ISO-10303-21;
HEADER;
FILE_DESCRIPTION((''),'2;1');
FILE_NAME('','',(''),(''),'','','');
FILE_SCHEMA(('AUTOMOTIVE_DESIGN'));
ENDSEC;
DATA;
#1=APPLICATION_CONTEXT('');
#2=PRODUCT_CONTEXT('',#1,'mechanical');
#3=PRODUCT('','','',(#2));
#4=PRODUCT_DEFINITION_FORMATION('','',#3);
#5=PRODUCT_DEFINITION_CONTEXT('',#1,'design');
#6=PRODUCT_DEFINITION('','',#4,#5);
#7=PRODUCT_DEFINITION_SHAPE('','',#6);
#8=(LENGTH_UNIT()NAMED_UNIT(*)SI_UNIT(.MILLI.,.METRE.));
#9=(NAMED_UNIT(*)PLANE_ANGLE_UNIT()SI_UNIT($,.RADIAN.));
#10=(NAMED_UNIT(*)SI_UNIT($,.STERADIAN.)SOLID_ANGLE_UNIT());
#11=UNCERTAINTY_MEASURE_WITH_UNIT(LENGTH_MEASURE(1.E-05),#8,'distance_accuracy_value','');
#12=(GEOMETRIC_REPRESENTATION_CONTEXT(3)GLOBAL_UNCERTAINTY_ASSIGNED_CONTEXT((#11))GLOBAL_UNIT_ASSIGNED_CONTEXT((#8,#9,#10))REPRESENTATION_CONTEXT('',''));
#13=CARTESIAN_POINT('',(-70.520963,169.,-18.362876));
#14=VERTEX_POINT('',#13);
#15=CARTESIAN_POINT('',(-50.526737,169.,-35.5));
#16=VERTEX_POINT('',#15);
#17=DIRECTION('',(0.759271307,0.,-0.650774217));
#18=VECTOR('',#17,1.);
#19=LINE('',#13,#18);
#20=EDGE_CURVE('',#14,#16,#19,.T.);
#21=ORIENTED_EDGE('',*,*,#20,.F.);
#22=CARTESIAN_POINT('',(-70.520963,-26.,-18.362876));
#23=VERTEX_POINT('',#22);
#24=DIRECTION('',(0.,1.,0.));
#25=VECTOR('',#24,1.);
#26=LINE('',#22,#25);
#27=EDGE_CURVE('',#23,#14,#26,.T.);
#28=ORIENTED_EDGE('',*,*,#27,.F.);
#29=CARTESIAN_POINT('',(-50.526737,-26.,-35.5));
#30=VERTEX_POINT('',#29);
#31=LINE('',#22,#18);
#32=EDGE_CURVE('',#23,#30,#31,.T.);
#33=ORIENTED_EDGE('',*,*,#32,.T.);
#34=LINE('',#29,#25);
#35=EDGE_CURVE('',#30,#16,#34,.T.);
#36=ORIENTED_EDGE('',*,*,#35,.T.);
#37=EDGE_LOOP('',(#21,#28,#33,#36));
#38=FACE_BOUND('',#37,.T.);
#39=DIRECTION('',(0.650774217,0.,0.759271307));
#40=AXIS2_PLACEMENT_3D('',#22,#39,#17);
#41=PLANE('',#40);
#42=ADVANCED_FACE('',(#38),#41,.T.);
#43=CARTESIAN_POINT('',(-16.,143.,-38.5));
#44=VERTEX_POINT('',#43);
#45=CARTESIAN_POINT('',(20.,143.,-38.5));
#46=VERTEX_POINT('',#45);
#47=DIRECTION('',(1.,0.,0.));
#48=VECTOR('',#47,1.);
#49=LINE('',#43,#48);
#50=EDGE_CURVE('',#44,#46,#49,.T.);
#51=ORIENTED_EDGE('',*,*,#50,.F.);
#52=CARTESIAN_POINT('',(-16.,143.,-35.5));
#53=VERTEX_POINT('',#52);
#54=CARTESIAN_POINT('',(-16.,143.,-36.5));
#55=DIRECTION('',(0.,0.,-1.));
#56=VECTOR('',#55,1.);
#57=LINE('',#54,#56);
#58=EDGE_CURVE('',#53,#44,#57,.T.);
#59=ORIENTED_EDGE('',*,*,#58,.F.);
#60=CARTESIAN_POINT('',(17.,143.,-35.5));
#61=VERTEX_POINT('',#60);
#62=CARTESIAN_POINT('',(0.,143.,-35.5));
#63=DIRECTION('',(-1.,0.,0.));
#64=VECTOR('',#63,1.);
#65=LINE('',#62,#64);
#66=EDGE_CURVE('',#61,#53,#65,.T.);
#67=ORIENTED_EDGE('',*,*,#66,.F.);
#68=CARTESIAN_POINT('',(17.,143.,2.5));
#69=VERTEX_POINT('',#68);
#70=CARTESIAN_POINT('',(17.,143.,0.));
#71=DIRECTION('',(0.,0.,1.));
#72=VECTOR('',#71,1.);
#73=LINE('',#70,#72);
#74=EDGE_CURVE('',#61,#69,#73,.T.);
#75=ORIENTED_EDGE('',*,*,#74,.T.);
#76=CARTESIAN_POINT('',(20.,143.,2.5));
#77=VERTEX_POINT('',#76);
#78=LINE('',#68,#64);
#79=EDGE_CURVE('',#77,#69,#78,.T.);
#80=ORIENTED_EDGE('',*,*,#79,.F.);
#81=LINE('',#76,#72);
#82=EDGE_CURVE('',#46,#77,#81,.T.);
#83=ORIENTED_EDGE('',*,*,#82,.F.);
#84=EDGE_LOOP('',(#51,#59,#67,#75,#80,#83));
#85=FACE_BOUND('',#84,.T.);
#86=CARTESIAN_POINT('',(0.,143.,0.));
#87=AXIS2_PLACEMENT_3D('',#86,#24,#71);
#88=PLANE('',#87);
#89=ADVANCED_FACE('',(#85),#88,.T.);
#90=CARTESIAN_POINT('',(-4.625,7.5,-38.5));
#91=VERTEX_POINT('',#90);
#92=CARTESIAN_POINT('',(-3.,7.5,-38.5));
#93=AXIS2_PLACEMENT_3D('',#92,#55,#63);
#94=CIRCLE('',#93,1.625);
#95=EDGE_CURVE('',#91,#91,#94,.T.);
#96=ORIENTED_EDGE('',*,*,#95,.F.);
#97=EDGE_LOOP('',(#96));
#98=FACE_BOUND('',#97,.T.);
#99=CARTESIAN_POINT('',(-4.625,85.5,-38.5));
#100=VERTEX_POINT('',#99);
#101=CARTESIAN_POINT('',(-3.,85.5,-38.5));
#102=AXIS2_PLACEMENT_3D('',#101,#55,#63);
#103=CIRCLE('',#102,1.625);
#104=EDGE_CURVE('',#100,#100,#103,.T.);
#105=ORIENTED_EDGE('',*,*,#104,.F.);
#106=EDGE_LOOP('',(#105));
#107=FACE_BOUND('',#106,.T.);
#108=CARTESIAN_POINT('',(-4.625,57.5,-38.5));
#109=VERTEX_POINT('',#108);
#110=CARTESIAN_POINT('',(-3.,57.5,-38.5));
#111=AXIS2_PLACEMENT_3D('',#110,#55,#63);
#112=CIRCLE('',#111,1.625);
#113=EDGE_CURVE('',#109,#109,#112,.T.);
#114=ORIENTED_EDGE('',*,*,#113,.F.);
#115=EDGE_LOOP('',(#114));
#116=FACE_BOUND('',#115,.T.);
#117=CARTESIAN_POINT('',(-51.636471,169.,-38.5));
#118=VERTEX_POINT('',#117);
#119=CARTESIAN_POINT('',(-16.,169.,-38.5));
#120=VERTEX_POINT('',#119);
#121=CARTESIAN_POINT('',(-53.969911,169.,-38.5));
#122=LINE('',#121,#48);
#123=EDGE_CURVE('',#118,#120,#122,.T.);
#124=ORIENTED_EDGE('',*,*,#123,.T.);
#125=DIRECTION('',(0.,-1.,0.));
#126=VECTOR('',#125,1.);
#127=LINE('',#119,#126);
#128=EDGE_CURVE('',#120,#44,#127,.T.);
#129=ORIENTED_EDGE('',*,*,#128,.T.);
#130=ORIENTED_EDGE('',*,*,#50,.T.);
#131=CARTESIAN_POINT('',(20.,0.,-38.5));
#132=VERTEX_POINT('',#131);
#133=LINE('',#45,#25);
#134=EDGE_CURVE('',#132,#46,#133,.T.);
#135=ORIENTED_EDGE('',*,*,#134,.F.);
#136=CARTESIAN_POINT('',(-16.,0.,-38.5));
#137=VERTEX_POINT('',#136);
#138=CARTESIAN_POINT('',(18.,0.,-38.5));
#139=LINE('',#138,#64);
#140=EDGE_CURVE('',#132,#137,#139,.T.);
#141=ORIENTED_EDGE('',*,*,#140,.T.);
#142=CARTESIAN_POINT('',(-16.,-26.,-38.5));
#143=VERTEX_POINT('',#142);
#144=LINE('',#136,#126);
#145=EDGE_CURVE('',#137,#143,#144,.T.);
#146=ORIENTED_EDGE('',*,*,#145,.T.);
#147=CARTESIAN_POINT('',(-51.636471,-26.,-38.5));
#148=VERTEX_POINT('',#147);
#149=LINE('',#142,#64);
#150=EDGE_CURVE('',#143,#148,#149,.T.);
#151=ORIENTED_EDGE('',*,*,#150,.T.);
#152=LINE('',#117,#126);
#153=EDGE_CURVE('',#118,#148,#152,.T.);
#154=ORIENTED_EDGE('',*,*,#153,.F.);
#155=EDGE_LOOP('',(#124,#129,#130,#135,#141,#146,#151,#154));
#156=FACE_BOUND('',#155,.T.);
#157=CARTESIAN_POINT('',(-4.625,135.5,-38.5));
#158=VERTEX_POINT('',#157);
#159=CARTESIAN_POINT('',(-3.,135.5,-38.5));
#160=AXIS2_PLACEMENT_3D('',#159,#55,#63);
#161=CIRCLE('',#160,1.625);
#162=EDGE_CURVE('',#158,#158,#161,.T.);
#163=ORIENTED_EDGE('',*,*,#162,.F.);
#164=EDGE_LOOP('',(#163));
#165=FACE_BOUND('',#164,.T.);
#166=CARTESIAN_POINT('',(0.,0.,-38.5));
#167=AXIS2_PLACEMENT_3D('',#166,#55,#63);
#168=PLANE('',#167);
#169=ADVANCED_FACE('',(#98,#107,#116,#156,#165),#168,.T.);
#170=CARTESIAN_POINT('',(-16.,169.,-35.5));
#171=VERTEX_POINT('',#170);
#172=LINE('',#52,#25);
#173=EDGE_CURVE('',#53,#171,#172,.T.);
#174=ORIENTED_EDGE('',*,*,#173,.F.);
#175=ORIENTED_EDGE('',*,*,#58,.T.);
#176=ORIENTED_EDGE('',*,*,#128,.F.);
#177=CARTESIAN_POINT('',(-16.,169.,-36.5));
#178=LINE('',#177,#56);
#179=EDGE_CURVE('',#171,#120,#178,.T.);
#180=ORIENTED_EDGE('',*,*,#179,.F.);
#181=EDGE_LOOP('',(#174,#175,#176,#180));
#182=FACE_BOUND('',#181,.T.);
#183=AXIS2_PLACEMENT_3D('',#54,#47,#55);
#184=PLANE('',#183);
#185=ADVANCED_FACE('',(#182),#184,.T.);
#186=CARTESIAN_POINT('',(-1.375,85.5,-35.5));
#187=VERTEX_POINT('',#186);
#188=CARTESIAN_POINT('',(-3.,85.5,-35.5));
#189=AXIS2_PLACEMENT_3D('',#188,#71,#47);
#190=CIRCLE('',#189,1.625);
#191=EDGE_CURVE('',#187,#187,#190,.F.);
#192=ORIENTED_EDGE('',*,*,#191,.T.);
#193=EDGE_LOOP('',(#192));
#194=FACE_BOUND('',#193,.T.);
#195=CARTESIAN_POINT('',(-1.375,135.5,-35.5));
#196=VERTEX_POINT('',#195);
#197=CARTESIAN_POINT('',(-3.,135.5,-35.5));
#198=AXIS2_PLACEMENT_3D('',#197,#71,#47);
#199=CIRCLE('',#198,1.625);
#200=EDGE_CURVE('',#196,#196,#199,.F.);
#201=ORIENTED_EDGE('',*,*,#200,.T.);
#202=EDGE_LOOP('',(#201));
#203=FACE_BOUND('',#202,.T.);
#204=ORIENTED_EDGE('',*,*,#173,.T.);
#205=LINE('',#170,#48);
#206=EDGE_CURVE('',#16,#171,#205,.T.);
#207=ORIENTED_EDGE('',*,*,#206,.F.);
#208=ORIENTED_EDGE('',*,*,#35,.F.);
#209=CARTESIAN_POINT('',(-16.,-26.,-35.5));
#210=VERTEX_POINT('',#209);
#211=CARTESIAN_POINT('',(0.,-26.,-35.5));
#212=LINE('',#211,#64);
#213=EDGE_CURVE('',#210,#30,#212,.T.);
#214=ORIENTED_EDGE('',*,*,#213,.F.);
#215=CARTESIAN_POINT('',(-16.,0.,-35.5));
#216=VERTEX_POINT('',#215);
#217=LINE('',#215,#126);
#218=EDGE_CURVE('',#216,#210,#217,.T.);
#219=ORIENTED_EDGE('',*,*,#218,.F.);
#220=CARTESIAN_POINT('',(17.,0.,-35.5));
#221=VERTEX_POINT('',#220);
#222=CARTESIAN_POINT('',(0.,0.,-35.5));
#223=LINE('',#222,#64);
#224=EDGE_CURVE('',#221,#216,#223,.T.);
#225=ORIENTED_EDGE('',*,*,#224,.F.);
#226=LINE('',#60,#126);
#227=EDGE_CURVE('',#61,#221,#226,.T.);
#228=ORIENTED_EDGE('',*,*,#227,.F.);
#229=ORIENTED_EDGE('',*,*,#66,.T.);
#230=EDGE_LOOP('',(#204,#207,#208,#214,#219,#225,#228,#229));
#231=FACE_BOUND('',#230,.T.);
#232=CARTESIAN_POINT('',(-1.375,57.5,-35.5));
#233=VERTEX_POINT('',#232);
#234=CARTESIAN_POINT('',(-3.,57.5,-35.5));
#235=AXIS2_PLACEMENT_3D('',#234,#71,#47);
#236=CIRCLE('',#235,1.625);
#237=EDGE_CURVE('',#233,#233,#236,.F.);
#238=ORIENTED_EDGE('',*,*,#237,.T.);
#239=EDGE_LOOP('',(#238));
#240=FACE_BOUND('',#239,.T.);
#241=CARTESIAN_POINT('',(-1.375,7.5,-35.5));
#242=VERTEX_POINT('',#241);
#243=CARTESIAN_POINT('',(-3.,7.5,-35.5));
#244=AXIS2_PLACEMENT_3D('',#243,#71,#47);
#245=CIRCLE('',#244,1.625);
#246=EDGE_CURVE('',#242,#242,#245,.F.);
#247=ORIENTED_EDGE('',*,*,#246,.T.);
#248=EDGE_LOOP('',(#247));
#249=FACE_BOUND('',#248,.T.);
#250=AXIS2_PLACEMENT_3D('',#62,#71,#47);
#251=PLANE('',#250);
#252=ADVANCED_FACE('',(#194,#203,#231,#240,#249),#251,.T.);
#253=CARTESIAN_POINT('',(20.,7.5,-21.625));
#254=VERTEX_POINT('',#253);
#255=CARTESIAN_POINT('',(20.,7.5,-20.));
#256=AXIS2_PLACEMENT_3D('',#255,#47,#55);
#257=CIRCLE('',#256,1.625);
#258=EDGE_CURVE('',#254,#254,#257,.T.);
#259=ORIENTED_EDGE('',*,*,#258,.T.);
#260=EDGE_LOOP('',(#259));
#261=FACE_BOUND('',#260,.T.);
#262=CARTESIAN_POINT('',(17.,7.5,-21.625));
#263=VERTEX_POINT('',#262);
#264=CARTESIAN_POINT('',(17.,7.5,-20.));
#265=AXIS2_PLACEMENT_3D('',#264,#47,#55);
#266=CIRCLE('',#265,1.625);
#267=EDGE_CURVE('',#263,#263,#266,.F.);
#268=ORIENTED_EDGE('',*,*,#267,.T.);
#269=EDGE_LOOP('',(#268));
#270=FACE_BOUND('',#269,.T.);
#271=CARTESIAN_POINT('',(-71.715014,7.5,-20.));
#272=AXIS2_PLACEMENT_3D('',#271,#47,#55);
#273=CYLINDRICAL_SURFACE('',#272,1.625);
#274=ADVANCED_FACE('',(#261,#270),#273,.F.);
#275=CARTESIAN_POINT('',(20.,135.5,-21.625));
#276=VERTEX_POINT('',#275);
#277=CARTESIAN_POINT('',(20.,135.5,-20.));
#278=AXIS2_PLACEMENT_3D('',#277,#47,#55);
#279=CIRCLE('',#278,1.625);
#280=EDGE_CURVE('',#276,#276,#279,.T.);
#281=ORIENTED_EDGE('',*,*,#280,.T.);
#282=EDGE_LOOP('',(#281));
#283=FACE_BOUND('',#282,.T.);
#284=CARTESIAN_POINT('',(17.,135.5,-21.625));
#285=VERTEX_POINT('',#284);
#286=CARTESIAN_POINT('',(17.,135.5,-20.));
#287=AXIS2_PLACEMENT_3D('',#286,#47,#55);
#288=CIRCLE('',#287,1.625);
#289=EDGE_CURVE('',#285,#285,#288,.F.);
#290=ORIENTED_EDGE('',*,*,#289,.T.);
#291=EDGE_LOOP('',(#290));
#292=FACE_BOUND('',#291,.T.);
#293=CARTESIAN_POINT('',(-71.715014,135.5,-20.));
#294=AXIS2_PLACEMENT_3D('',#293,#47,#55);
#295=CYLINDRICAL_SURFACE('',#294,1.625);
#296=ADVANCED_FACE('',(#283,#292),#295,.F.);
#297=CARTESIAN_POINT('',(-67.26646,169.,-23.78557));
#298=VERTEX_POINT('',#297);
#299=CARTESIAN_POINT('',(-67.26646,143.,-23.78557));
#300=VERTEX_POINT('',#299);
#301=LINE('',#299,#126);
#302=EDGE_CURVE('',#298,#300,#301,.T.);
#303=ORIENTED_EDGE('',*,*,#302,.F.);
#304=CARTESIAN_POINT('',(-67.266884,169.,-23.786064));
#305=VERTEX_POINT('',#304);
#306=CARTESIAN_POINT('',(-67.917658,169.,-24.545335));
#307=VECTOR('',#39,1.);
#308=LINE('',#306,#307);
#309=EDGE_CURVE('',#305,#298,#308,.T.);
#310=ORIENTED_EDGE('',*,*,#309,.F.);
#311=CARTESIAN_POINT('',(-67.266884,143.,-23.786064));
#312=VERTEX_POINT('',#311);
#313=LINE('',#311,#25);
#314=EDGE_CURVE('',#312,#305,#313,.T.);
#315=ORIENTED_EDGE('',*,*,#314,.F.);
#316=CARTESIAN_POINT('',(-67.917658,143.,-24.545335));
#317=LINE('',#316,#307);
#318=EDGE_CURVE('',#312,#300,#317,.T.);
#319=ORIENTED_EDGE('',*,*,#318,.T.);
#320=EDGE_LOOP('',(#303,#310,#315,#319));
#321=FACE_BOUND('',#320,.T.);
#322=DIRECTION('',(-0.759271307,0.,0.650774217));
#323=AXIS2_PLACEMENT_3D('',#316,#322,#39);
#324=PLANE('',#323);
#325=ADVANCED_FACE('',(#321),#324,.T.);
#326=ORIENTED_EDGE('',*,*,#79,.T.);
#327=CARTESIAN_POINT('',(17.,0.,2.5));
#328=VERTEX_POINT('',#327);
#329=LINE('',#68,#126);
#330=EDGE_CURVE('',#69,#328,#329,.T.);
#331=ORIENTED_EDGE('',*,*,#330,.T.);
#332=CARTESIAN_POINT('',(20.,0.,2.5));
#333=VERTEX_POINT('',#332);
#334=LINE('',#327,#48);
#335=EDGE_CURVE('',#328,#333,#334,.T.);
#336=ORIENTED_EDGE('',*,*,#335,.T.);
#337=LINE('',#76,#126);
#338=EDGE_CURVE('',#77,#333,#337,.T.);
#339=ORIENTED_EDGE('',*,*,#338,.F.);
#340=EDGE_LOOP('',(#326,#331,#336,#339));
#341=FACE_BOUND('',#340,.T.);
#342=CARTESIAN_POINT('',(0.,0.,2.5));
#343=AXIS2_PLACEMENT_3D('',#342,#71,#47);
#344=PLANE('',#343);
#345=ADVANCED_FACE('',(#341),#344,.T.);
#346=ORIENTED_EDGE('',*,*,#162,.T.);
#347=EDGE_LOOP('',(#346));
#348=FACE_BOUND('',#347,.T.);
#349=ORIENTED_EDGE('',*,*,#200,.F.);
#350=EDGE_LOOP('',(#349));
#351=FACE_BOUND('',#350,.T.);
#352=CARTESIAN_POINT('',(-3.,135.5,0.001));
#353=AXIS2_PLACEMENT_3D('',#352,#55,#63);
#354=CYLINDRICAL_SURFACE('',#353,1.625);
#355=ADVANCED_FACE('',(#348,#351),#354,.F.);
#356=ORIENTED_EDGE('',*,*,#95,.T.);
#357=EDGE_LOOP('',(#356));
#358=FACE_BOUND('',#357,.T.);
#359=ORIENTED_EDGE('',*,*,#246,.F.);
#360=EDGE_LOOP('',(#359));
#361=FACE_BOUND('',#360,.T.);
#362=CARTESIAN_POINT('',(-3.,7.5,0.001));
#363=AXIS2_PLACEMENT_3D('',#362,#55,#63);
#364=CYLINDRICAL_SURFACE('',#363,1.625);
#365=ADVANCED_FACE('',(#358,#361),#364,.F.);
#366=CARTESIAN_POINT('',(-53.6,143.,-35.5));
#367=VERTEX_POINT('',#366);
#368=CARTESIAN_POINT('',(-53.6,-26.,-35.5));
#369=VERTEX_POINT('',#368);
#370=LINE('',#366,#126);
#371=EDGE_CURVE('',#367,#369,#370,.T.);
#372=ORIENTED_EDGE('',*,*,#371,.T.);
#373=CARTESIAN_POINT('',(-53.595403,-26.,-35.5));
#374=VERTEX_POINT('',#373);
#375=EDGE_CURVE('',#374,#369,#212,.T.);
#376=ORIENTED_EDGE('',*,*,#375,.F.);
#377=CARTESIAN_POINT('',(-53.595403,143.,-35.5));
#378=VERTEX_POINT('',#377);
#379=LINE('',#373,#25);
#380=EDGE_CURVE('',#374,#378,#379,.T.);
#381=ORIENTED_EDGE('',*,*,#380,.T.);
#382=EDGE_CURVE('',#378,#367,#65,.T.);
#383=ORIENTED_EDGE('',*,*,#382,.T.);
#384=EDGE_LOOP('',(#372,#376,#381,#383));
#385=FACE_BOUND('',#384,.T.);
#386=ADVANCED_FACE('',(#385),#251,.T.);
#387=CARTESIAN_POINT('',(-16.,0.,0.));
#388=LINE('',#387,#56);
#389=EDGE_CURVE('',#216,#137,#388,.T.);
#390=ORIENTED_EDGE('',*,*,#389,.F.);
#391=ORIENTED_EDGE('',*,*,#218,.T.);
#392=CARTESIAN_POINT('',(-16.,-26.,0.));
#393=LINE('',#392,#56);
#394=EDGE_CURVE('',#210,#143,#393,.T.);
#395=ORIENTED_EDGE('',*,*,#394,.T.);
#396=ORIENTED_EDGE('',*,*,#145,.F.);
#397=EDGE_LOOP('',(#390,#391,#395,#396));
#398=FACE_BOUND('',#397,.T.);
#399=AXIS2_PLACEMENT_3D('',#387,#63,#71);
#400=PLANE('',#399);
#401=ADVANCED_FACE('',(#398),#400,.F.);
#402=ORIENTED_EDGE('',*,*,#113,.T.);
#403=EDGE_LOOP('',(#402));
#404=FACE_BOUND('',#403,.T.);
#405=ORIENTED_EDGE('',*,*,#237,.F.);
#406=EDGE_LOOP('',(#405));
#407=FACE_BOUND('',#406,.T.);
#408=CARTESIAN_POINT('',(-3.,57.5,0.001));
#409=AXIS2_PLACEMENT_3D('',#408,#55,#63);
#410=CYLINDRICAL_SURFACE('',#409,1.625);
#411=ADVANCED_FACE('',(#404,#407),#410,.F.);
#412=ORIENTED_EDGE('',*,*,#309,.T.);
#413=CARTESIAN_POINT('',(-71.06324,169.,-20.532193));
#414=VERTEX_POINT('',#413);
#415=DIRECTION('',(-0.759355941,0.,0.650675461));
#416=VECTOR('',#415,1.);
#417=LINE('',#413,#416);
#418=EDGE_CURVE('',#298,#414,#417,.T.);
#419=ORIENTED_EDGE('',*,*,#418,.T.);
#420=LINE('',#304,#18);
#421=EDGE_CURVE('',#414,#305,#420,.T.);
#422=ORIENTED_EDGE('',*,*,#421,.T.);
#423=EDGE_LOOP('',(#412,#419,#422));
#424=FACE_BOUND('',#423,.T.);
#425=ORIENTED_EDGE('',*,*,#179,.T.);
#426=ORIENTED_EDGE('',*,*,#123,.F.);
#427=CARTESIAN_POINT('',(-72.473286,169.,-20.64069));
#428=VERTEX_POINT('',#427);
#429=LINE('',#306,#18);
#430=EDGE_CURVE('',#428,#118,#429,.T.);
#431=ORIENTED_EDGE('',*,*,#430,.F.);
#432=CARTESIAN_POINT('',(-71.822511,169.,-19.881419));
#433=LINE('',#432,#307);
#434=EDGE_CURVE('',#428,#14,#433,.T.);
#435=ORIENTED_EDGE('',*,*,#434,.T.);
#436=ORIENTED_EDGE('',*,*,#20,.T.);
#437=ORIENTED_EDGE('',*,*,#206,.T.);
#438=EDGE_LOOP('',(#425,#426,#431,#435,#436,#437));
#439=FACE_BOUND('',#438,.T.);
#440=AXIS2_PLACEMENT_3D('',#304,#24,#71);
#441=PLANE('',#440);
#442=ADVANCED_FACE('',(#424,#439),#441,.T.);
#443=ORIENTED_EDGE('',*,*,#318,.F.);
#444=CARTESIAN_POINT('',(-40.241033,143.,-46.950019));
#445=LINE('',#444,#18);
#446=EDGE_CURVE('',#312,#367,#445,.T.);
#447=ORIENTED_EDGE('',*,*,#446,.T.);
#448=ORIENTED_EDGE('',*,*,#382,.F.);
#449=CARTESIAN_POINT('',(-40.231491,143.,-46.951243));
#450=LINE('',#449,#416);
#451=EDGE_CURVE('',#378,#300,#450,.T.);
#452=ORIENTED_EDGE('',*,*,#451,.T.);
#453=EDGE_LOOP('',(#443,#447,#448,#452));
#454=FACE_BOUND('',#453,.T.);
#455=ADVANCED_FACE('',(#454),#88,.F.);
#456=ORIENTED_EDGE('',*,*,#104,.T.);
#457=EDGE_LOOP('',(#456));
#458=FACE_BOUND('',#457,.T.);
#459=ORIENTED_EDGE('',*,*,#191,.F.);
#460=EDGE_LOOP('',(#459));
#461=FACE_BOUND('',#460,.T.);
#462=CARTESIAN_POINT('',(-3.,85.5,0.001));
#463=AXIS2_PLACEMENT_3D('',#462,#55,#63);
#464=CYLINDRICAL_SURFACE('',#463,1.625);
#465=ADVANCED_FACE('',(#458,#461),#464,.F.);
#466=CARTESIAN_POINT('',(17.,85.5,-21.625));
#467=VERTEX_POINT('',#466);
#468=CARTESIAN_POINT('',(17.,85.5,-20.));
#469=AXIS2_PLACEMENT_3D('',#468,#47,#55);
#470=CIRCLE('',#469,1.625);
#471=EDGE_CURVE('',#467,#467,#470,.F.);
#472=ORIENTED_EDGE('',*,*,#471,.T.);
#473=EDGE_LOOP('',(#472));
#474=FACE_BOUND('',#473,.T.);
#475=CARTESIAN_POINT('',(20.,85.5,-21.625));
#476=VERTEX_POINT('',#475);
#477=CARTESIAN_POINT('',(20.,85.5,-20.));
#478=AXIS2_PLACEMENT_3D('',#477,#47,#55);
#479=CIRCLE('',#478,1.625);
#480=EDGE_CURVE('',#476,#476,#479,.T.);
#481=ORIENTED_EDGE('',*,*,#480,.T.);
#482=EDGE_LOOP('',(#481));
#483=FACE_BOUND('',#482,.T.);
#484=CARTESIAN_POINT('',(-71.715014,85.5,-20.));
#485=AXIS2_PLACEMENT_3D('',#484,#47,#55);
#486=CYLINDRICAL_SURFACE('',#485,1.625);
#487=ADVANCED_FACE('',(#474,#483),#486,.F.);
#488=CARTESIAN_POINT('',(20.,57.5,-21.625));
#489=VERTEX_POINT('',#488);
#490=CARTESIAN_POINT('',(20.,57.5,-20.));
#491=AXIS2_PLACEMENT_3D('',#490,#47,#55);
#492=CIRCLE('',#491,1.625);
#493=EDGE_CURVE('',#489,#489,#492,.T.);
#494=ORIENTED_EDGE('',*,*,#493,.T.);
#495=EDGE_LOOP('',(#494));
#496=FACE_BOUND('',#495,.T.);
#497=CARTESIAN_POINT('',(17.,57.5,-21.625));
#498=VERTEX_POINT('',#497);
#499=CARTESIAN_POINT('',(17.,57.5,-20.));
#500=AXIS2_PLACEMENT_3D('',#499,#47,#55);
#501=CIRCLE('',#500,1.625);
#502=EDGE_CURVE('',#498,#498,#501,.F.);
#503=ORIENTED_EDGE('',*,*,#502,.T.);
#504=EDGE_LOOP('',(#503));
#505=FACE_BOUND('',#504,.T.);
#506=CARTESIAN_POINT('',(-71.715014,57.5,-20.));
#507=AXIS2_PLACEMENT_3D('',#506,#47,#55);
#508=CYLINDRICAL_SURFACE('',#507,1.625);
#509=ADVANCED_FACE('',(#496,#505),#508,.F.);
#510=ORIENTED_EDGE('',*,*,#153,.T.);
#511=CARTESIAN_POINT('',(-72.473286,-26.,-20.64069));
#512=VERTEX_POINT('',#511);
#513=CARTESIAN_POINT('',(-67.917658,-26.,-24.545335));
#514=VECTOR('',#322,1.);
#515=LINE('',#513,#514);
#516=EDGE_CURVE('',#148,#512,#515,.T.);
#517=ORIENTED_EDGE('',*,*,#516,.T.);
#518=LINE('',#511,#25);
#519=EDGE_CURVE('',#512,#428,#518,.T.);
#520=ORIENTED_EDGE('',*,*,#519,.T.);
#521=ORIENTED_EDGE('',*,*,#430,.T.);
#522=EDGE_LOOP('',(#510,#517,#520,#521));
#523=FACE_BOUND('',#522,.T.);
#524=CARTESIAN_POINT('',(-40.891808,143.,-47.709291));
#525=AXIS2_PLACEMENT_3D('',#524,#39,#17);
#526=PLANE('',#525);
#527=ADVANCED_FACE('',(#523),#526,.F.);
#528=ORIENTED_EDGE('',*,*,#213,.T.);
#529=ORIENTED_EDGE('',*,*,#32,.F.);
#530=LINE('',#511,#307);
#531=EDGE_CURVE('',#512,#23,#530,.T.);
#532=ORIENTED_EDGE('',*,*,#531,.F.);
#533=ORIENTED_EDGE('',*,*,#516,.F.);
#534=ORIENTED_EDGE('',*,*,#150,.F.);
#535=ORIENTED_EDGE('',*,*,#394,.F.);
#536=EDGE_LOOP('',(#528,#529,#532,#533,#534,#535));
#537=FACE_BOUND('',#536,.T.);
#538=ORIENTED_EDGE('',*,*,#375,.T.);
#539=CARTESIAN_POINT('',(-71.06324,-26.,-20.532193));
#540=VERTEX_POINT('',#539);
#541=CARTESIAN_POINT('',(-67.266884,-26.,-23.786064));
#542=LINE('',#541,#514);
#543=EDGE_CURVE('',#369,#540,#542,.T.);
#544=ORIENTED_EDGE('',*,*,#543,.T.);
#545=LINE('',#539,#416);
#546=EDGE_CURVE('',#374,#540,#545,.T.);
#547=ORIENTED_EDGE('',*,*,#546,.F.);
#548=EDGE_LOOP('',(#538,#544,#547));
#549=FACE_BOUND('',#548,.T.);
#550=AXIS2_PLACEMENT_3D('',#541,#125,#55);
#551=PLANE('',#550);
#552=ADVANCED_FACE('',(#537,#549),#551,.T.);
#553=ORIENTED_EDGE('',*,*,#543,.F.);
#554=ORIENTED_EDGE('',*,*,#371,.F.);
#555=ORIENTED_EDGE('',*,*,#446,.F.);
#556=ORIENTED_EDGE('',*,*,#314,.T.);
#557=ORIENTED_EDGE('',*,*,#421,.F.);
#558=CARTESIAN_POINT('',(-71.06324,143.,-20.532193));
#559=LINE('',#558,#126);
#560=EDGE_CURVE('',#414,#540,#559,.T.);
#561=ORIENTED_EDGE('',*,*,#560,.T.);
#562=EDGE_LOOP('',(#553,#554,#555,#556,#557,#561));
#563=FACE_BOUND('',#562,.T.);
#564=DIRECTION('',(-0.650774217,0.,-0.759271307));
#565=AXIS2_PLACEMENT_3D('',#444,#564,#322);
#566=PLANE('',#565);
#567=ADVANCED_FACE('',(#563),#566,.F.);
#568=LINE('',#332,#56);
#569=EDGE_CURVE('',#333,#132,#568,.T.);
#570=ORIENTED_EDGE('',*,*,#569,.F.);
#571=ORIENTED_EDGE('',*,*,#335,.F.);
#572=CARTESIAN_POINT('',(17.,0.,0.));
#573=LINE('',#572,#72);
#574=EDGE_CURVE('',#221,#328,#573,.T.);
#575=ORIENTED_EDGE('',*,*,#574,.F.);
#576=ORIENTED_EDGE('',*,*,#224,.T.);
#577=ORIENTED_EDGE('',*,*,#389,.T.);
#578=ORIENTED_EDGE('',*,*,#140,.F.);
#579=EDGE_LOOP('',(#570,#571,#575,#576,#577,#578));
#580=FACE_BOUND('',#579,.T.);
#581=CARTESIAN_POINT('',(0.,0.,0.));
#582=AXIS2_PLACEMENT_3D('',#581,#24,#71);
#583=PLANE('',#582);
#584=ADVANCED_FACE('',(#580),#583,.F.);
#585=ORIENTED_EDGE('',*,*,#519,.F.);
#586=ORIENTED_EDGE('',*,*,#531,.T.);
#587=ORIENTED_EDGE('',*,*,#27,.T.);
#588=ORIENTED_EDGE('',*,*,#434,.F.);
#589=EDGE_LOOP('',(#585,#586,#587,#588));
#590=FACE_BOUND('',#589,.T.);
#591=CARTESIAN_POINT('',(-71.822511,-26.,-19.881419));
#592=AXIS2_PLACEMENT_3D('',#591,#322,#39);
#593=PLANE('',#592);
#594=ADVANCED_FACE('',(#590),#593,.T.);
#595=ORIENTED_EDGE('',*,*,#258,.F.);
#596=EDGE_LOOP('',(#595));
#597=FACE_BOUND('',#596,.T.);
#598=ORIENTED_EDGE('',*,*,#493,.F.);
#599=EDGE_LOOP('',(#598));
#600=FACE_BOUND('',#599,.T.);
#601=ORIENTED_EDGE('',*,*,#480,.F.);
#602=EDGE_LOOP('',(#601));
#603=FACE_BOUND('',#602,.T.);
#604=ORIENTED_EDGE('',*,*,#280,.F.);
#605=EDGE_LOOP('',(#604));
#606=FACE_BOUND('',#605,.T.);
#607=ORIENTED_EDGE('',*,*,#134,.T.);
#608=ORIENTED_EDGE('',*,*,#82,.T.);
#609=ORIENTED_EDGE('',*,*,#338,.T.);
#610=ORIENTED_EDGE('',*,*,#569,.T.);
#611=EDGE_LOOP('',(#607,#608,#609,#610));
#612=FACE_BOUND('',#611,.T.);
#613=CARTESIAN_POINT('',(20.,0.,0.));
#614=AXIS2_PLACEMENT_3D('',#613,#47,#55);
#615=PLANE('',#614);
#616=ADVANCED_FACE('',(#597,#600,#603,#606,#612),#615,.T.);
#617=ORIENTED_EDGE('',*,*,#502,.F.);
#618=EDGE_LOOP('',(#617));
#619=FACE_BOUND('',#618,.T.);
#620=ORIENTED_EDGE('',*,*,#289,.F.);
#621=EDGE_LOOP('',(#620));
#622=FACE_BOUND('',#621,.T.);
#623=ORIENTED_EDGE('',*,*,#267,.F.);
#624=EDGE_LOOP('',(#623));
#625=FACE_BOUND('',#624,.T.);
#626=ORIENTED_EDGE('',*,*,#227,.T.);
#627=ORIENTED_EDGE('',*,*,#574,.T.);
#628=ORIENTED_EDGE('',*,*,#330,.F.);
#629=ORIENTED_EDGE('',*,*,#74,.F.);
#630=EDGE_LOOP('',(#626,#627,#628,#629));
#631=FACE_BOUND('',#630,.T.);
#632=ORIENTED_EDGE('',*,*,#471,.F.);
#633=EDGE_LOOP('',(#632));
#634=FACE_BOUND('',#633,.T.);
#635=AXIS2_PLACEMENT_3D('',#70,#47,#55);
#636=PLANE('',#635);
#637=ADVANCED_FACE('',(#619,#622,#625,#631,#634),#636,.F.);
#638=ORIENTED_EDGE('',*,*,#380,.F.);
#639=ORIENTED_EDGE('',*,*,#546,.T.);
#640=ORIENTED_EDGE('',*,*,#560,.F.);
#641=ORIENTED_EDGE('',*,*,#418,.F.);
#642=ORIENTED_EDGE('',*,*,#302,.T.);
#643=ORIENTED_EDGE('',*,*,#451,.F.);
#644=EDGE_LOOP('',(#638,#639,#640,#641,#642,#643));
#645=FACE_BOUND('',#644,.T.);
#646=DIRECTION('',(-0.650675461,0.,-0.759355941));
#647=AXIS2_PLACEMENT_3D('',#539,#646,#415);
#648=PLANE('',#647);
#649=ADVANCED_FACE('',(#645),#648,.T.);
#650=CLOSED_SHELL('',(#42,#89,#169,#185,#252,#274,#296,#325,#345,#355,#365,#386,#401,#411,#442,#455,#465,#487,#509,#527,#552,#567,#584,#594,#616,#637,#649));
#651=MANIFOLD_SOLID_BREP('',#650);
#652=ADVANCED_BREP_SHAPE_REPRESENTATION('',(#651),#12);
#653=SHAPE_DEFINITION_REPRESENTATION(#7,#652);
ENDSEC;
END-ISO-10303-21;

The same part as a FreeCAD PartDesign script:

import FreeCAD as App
import Part
import Sketcher
from FreeCAD import Vector
Q = App.Units.Quantity


def add_polygon(sketch, points):
    """Adds a closed chain of lines whose ends are joined by coincident constraints."""
    first, n = sketch.GeometryCount, len(points)
    for a, b in zip(points, points[1:] + points[:1]):
        sketch.addGeometry(Part.LineSegment(App.Vector(*a, 0), App.Vector(*b, 0)), False)
    for i in range(n):
        sketch.addConstraint(Sketcher.Constraint("Coincident", first + i, 2, first + (i + 1) % n, 1))

doc = App.newDocument("Part")
params = doc.addObject("Spreadsheet::Sheet", "Params")
for row, (alias, value) in enumerate([
    ("sketch1_width", "18 mm"),
    ("sketch1_width2", "17 mm"),
    ("sketch1_height", "1 mm"),
    ("sketch1_length", "1 mm"),
    ("sketch1_length2", "23 mm"),
    ("pad1_length", "143 mm"),
    ("sketch2_diameter", "3.25 mm"),
    ("sketch3_diameter", "3.25 mm"),
    ("sketch4_diameter", "3.25 mm"),
    ("sketch5_diameter", "3.25 mm"),
    ("sketch6_diameter", "3.25 mm"),
    ("sketch7_diameter", "3.25 mm"),
    ("sketch8_diameter", "3.25 mm"),
    ("sketch9_diameter", "3.25 mm"),
    ("pocket9_length", "30 mm"),
    ("sketch11_width", "5 mm"),
    ("sketch11_height", "26 mm"),
    ("pad2_length", "1 mm"),
    ("sketch12_width", "1 mm"),
    ("sketch12_height", "143 mm"),
    ("pad3_length", "3.5 mm"),
    ("sketch13_height", "1 mm"),
    ("sketch13_length", "1 mm"),
    ("sketch13_length2", "18 mm"),
    ("sketch13_width", "37.6 mm"),
    ("pad4_length", "26 mm"),
    ("sketch14_height", "1 mm"),
    ("pad5_length", "26 mm"),
    ("sketch15_length", "1 mm"),
    ("sketch15_length2", "2 mm"),
    ("pad6_length", "195 mm"),
    ("sketch16_diameter", "3.25 mm"),
    ("sketch16_width", "34 mm"),
    ("sketch16_height", "26 mm"),
    ("sketch16_height2", "195 mm"),
    ("pad7_length", "2 mm"),
    ("sketch18_diameter", "3.25 mm"),
    ("sketch18_width", "143 mm"),
    ("sketch18_height", "41 mm"),
    ("pad8_length", "2 mm"),
], start=1):
    params.set(f"A{row}", alias)
    params.set(f"B{row}", "=" + value)
    params.setAlias(f"B{row}", alias)

body = doc.addObject("PartDesign::Body", "Body")

# Sketch on XZ plane
sketch1 = body.newObject("Sketcher::SketchObject", "Sketch")
sketch1.AttachmentSupport = (doc.getObject("XZ_Plane"), [""])
sketch1.MapMode = "FlatFace"
add_polygon(sketch1, [(0, 0), (18, 0), (18, -36.5), (-53.969911, -36.5), (-71.714014, -21.291464), (-71.06324, -20.532193), (-53.6, -35.5), (17, -35.5), (17, -1), (0, -1)])  # lines 0-9
sketch1.addConstraint([
    Sketcher.Constraint("Horizontal", 0),
    Sketcher.Constraint("Vertical", 1),
    Sketcher.Constraint("Horizontal", 2),
    Sketcher.Constraint("Horizontal", 6),
    Sketcher.Constraint("Vertical", 7),
    Sketcher.Constraint("Horizontal", 8),
    Sketcher.Constraint("Vertical", 9),
    Sketcher.Constraint("Coincident", 9, 2, -1, 1),
    Sketcher.Constraint("Perpendicular", 3, 4),
    Sketcher.Constraint("Perpendicular", 4, 5),
    Sketcher.Constraint("DistanceX", 0, 1, 0, 2, Q("18 mm")),
    Sketcher.Constraint("DistanceX", 8, 2, 8, 1, Q("17 mm")),
    Sketcher.Constraint("DistanceY", 9, 1, 9, 2, Q("1 mm")),
    Sketcher.Constraint("Distance", 4, Q("1 mm")),
    Sketcher.Constraint("Distance", 5, Q("23 mm")),
    Sketcher.Constraint("DistanceX", 6, 1, 6, 2, Q("70.6 mm")),
    Sketcher.Constraint("DistanceY", 1, 2, 1, 1, Q("36.5 mm")),
    Sketcher.Constraint("DistanceY", 7, 1, 7, 2, Q("34.5 mm")),
    Sketcher.Constraint("Angle", 3, Q("139.4 deg")),
])
sketch1.setExpression("Constraints[20]", "Params.sketch1_width")
sketch1.setExpression("Constraints[21]", "Params.sketch1_width2")
sketch1.setExpression("Constraints[22]", "Params.sketch1_height")
sketch1.setExpression("Constraints[23]", "Params.sketch1_length")
sketch1.setExpression("Constraints[24]", "Params.sketch1_length2")
pad1 = body.newObject("PartDesign::Pad", "Pad")
pad1.Profile = sketch1
pad1.setExpression("Length", "Params.pad1_length")
pad1.Reversed = True

# Sketch on YZ plane
sketch2 = body.newObject("Sketcher::SketchObject", "Sketch001")
sketch2.AttachmentSupport = (doc.getObject("YZ_Plane"), [""])
sketch2.MapMode = "FlatFace"
sketch2.AttachmentOffset = App.Placement(Vector(0, 0, 18), App.Rotation())
sketch2.addGeometry(Part.Circle(Vector(135.5, -20, 0), Vector(0, 0, 1), 1.625), False)
sketch2.addConstraint([
    Sketcher.Constraint("Diameter", 0, Q("3.25 mm")),
    Sketcher.Constraint("DistanceY", 0, 3, -1, 1, Q("20 mm")),
    Sketcher.Constraint("DistanceX", -1, 1, 0, 3, Q("135.5 mm")),
])
sketch2.setExpression("Constraints[0]", "Params.sketch2_diameter")
pocket1 = body.newObject("PartDesign::Pocket", "Pocket")
pocket1.Profile = sketch2
pocket1.Type = "UpToFirst"

# Sketch on YZ plane
sketch3 = body.newObject("Sketcher::SketchObject", "Sketch002")
sketch3.AttachmentSupport = (doc.getObject("YZ_Plane"), [""])
sketch3.MapMode = "FlatFace"
sketch3.AttachmentOffset = App.Placement(Vector(0, 0, 18), App.Rotation())
sketch3.addGeometry(Part.Circle(Vector(7.5, -20, 0), Vector(0, 0, 1), 1.625), False)
sketch3.addConstraint([
    Sketcher.Constraint("Diameter", 0, Q("3.25 mm")),
    Sketcher.Constraint("DistanceY", 0, 3, -1, 1, Q("20 mm")),
    Sketcher.Constraint("DistanceX", -1, 1, 0, 3, Q("7.5 mm")),
])
sketch3.setExpression("Constraints[0]", "Params.sketch3_diameter")
pocket2 = body.newObject("PartDesign::Pocket", "Pocket001")
pocket2.Profile = sketch3
pocket2.Type = "UpToFirst"

# Sketch on YZ plane
sketch4 = body.newObject("Sketcher::SketchObject", "Sketch003")
sketch4.AttachmentSupport = (doc.getObject("YZ_Plane"), [""])
sketch4.MapMode = "FlatFace"
sketch4.AttachmentOffset = App.Placement(Vector(0, 0, 18), App.Rotation())
sketch4.addGeometry(Part.Circle(Vector(85.5, -20, 0), Vector(0, 0, 1), 1.625), False)
sketch4.addConstraint([
    Sketcher.Constraint("Diameter", 0, Q("3.25 mm")),
    Sketcher.Constraint("DistanceY", 0, 3, -1, 1, Q("20 mm")),
    Sketcher.Constraint("DistanceX", -1, 1, 0, 3, Q("85.5 mm")),
])
sketch4.setExpression("Constraints[0]", "Params.sketch4_diameter")
pocket3 = body.newObject("PartDesign::Pocket", "Pocket002")
pocket3.Profile = sketch4
pocket3.Type = "UpToFirst"

# Sketch on YZ plane
sketch5 = body.newObject("Sketcher::SketchObject", "Sketch004")
sketch5.AttachmentSupport = (doc.getObject("YZ_Plane"), [""])
sketch5.MapMode = "FlatFace"
sketch5.AttachmentOffset = App.Placement(Vector(0, 0, 18), App.Rotation())
sketch5.addGeometry(Part.Circle(Vector(57.5, -20, 0), Vector(0, 0, 1), 1.625), False)
sketch5.addConstraint([
    Sketcher.Constraint("Diameter", 0, Q("3.25 mm")),
    Sketcher.Constraint("DistanceY", 0, 3, -1, 1, Q("20 mm")),
    Sketcher.Constraint("DistanceX", -1, 1, 0, 3, Q("57.5 mm")),
])
sketch5.setExpression("Constraints[0]", "Params.sketch5_diameter")
pocket4 = body.newObject("PartDesign::Pocket", "Pocket003")
pocket4.Profile = sketch5
pocket4.Type = "UpToFirst"

# Sketch on XY plane
sketch6 = body.newObject("Sketcher::SketchObject", "Sketch005")
sketch6.AttachmentSupport = (doc.getObject("XY_Plane"), [""])
sketch6.MapMode = "FlatFace"
sketch6.AttachmentOffset = App.Placement(Vector(0, 0, -36.5), App.Rotation())
sketch6.addGeometry(Part.Circle(Vector(-3, 7.5, 0), Vector(0, 0, 1), 1.625), False)
sketch6.addConstraint([
    Sketcher.Constraint("Diameter", 0, Q("3.25 mm")),
    Sketcher.Constraint("DistanceX", 0, 3, -1, 1, Q("3 mm")),
    Sketcher.Constraint("DistanceY", -1, 1, 0, 3, Q("7.5 mm")),
])
sketch6.setExpression("Constraints[0]", "Params.sketch6_diameter")
pocket5 = body.newObject("PartDesign::Pocket", "Pocket004")
pocket5.Profile = sketch6
pocket5.Type = "UpToFirst"
pocket5.Reversed = True

# Sketch on XY plane
sketch7 = body.newObject("Sketcher::SketchObject", "Sketch006")
sketch7.AttachmentSupport = (doc.getObject("XY_Plane"), [""])
sketch7.MapMode = "FlatFace"
sketch7.AttachmentOffset = App.Placement(Vector(0, 0, -36.5), App.Rotation())
sketch7.addGeometry(Part.Circle(Vector(-3, 135.5, 0), Vector(0, 0, 1), 1.625), False)
sketch7.addConstraint([
    Sketcher.Constraint("Diameter", 0, Q("3.25 mm")),
    Sketcher.Constraint("DistanceX", 0, 3, -1, 1, Q("3 mm")),
    Sketcher.Constraint("DistanceY", -1, 1, 0, 3, Q("135.5 mm")),
])
sketch7.setExpression("Constraints[0]", "Params.sketch7_diameter")
pocket6 = body.newObject("PartDesign::Pocket", "Pocket005")
pocket6.Profile = sketch7
pocket6.Type = "UpToFirst"
pocket6.Reversed = True

# Sketch on XY plane
sketch8 = body.newObject("Sketcher::SketchObject", "Sketch007")
sketch8.AttachmentSupport = (doc.getObject("XY_Plane"), [""])
sketch8.MapMode = "FlatFace"
sketch8.AttachmentOffset = App.Placement(Vector(0, 0, -36.5), App.Rotation())
sketch8.addGeometry(Part.Circle(Vector(-3, 57.5, 0), Vector(0, 0, 1), 1.625), False)
sketch8.addConstraint([
    Sketcher.Constraint("Diameter", 0, Q("3.25 mm")),
    Sketcher.Constraint("DistanceX", 0, 3, -1, 1, Q("3 mm")),
    Sketcher.Constraint("DistanceY", -1, 1, 0, 3, Q("57.5 mm")),
])
sketch8.setExpression("Constraints[0]", "Params.sketch8_diameter")
pocket7 = body.newObject("PartDesign::Pocket", "Pocket006")
pocket7.Profile = sketch8
pocket7.Type = "UpToFirst"
pocket7.Reversed = True

# Sketch on XY plane
sketch9 = body.newObject("Sketcher::SketchObject", "Sketch008")
sketch9.AttachmentSupport = (doc.getObject("XY_Plane"), [""])
sketch9.MapMode = "FlatFace"
sketch9.AttachmentOffset = App.Placement(Vector(0, 0, -36.5), App.Rotation())
sketch9.addGeometry(Part.Circle(Vector(-3, 85.5, 0), Vector(0, 0, 1), 1.625), False)
sketch9.addConstraint([
    Sketcher.Constraint("Diameter", 0, Q("3.25 mm")),
    Sketcher.Constraint("DistanceX", 0, 3, -1, 1, Q("3 mm")),
    Sketcher.Constraint("DistanceY", -1, 1, 0, 3, Q("85.5 mm")),
])
sketch9.setExpression("Constraints[0]", "Params.sketch9_diameter")
pocket8 = body.newObject("PartDesign::Pocket", "Pocket007")
pocket8.Profile = sketch9
pocket8.Type = "UpToFirst"
pocket8.Reversed = True

# Sketch on YZ plane
sketch10 = body.newObject("Sketcher::SketchObject", "Sketch009")
sketch10.AttachmentSupport = (doc.getObject("YZ_Plane"), [""])
sketch10.MapMode = "FlatFace"
sketch10.AttachmentOffset = App.Placement(Vector(0, 0, 18), App.Rotation())
add_polygon(sketch10, [(144.434061, 6.35556), (0, 6.35556), (0, -1), (144.434061, -1)])  # lines 0-3
sketch10.addConstraint([
    Sketcher.Constraint("Horizontal", 0),
    Sketcher.Constraint("Vertical", 1),
    Sketcher.Constraint("Horizontal", 2),
    Sketcher.Constraint("Vertical", 3),
    Sketcher.Constraint("PointOnObject", 0, 2, -2),
    Sketcher.Constraint("DistanceY", 1, 2, -1, 1, Q("1 mm")),
    Sketcher.Constraint("DistanceX", 0, 2, 0, 1, Q("144.434061 mm")),
    Sketcher.Constraint("DistanceY", 1, 2, 1, 1, Q("7.35556 mm")),
])
pocket9 = body.newObject("PartDesign::Pocket", "Pocket008")
pocket9.Profile = sketch10
pocket9.setExpression("Length", "Params.pocket9_length")

# Sketch on an angled plane
sketch11 = body.newObject("Sketcher::SketchObject", "Sketch010")
sketch11.Placement = App.Placement(Vector(-40.891808, 0, -47.709291), App.Rotation(Vector(-0.759271307, 0, 0.650774217), Vector(0, 0.999999999, 0), Vector(-0.650774217, 0, -0.759271307), "ZXY"))
add_polygon(sketch11, [(17.224546, 0), (35.594457, -26), (40.594457, -26), (40.594457, 0)])  # lines 0-3
add_polygon(sketch11, [(17.224546, 143), (40.594457, 143), (40.594457, 169), (35.594457, 169)])  # lines 4-7
sketch11.addConstraint([
    Sketcher.Constraint("Horizontal", 1),
    Sketcher.Constraint("Vertical", 2),
    Sketcher.Constraint("Horizontal", 3),
    Sketcher.Constraint("Horizontal", 4),
    Sketcher.Constraint("Vertical", 5),
    Sketcher.Constraint("Horizontal", 6),
    Sketcher.Constraint("PointOnObject", 2, 2, -1),
    Sketcher.Constraint("Vertical", 2, 2, 4, 2),
    Sketcher.Constraint("Vertical", 0, 2, 6, 2),
    Sketcher.Constraint("Vertical", 3, 2, 7, 2),
    Sketcher.Constraint("Equal", 2, 5),
    Sketcher.Constraint("DistanceX", 1, 1, 1, 2, Q("5 mm")),
    Sketcher.Constraint("DistanceY", 2, 1, 2, 2, Q("26 mm")),
    Sketcher.Constraint("DistanceY", -1, 1, 4, 2, Q("143 mm")),
    Sketcher.Constraint("DistanceX", 3, 2, 3, 1, Q("23.369911 mm")),
    Sketcher.Constraint("DistanceX", -1, 1, 0, 2, Q("35.594457 mm")),
])
sketch11.setExpression("Constraints[19]", "Params.sketch11_width")
sketch11.setExpression("Constraints[20]", "Params.sketch11_height")
pad2 = body.newObject("PartDesign::Pad", "Pad001")
pad2.Profile = sketch11
pad2.setExpression("Length", "Params.pad2_length")
pad2.Reversed = True

# Sketch on XY plane
sketch12 = body.newObject("Sketcher::SketchObject", "Sketch011")
sketch12.AttachmentSupport = (doc.getObject("XY_Plane"), [""])
sketch12.MapMode = "FlatFace"
sketch12.AttachmentOffset = App.Placement(Vector(0, 0, -1), App.Rotation())
add_polygon(sketch12, [(17, 143), (17, 0), (18, 0), (18, 143)])  # lines 0-3
sketch12.addConstraint([
    Sketcher.Constraint("Vertical", 0),
    Sketcher.Constraint("Horizontal", 1),
    Sketcher.Constraint("Vertical", 2),
    Sketcher.Constraint("Horizontal", 3),
    Sketcher.Constraint("PointOnObject", 0, 2, -1),
    Sketcher.Constraint("DistanceX", 1, 1, 1, 2, Q("1 mm")),
    Sketcher.Constraint("DistanceY", 0, 2, 0, 1, Q("143 mm")),
    Sketcher.Constraint("DistanceX", -1, 1, 0, 2, Q("17 mm")),
])
sketch12.setExpression("Constraints[9]", "Params.sketch12_width")
sketch12.setExpression("Constraints[10]", "Params.sketch12_height")
pad3 = body.newObject("PartDesign::Pad", "Pad002")
pad3.Profile = sketch12
pad3.setExpression("Length", "Params.pad3_length")

# Sketch on XZ plane
sketch13 = body.newObject("Sketcher::SketchObject", "Sketch012")
sketch13.AttachmentSupport = (doc.getObject("XZ_Plane"), [""])
sketch13.MapMode = "FlatFace"
sketch13.AttachmentOffset = App.Placement(Vector(0, 0, 26), App.Rotation())
add_polygon(sketch13, [(-67.266884, -23.786064), (-67.917658, -24.545335), (-53.972777, -36.497544), (-53.969911, -36.5), (-16, -36.5), (-16, -35.5), (-53.6, -35.5)])  # lines 0-6
sketch13.addConstraint([
    Sketcher.Constraint("Horizontal", 3),
    Sketcher.Constraint("Vertical", 4),
    Sketcher.Constraint("Horizontal", 5),
    Sketcher.Constraint("Perpendicular", 0, 1),
    Sketcher.Constraint("Parallel", 1, 2),
    Sketcher.Constraint("Parallel", 1, 6),
    Sketcher.Constraint("DistanceY", 4, 1, 4, 2, Q("1 mm")),
    Sketcher.Constraint("Distance", 0, Q("1 mm")),
    Sketcher.Constraint("Distance", 6, Q("18 mm")),
    Sketcher.Constraint("DistanceX", 5, 2, 5, 1, Q("37.6 mm")),
    Sketcher.Constraint("DistanceX", 3, 2, -1, 1, Q("16 mm")),
    Sketcher.Constraint("Angle", 0, Q("-130.6 deg")),
    Sketcher.Constraint("DistanceY", 2, 2, -1, 1, Q("36.5 mm")),
    Sketcher.Constraint("DistanceX", 0, 2, 1, 2, Q("13.944881 mm")),
])
sketch13.setExpression("Constraints[13]", "Params.sketch13_height")
sketch13.setExpression("Constraints[14]", "Params.sketch13_length")
sketch13.setExpression("Constraints[15]", "Params.sketch13_length2")
sketch13.setExpression("Constraints[16]", "Params.sketch13_width")
pad4 = body.newObject("PartDesign::Pad", "Pad003")
pad4.Profile = sketch13
pad4.setExpression("Length", "Params.pad4_length")
pad4.Reversed = True

# Sketch on XZ plane
sketch14 = body.newObject("Sketcher::SketchObject", "Sketch013")
sketch14.AttachmentSupport = (doc.getObject("XZ_Plane"), [""])
sketch14.MapMode = "FlatFace"
sketch14.AttachmentOffset = App.Placement(Vector(0, 0, -169), App.Rotation())
add_polygon(sketch14, [(-53.969911, -36.5), (-67.917658, -24.545335), (-67.264937, -23.783792), (-53.595403, -35.5), (-16, -35.5), (-16, -36.5)])  # lines 0-5
sketch14.addConstraint([
    Sketcher.Constraint("Horizontal", 3),
    Sketcher.Constraint("Vertical", 4),
    Sketcher.Constraint("Horizontal", 5),
    Sketcher.Constraint("Perpendicular", 0, 1),
    Sketcher.Constraint("Perpendicular", 1, 2),
    Sketcher.Constraint("DistanceY", 4, 2, 4, 1, Q("1 mm")),
    Sketcher.Constraint("DistanceX", 3, 2, -1, 1, Q("16 mm")),
    Sketcher.Constraint("Angle", 0, Q("139.4 deg")),
    Sketcher.Constraint("DistanceY", 2, 2, -1, 1, Q("35.5 mm")),
    Sketcher.Constraint("DistanceX", 5, 2, 5, 1, Q("37.969911 mm")),
    Sketcher.Constraint("Distance", 0, Q("18.369911 mm")),
    Sketcher.Constraint("Distance", 1, Q("1.002992 mm")),
])
sketch14.setExpression("Constraints[11]", "Params.sketch14_height")
pad5 = body.newObject("PartDesign::Pad", "Pad004")
pad5.Profile = sketch14
pad5.setExpression("Length", "Params.pad5_length")

# Sketch on XZ plane
sketch15 = body.newObject("Sketcher::SketchObject", "Sketch014")
sketch15.AttachmentSupport = (doc.getObject("XZ_Plane"), [""])
sketch15.MapMode = "FlatFace"
sketch15.AttachmentOffset = App.Placement(Vector(0, 0, -169), App.Rotation())
add_polygon(sketch15, [(-71.06324, -20.532193), (-71.714014, -21.291464), (-72.473286, -20.64069), (-71.822511, -19.881419), (-70.520963, -18.362876), (-50.526737, -35.5), (-53.595403, -35.5)])  # lines 0-6
sketch15.addConstraint([
    Sketcher.Constraint("Horizontal", 5),
    Sketcher.Constraint("Perpendicular", 0, 1),
    Sketcher.Constraint("Perpendicular", 1, 2),
    Sketcher.Constraint("Parallel", 2, 3),
    Sketcher.Constraint("Perpendicular", 3, 4),
    Sketcher.Constraint("Equal", 0, 1),
    Sketcher.Constraint("Equal", 1, 2),
    Sketcher.Constraint("Distance", 0, Q("1 mm")),
    Sketcher.Constraint("Distance", 3, Q("2 mm")),
    Sketcher.Constraint("Angle", 0, Q("-130.6 deg")),
    Sketcher.Constraint("DistanceY", 4, 2, -1, 1, Q("35.5 mm")),
    Sketcher.Constraint("Distance", 4, Q("26.33344 mm")),
    Sketcher.Constraint("Distance", 6, Q("23.003491 mm")),
    Sketcher.Constraint("DistanceX", 2, 2, -1, 1, Q("71.822511 mm")),
])
sketch15.setExpression("Constraints[14]", "Params.sketch15_length")
sketch15.setExpression("Constraints[15]", "Params.sketch15_length2")
pad6 = body.newObject("PartDesign::Pad", "Pad005")
pad6.Profile = sketch15
pad6.setExpression("Length", "Params.pad6_length")

# Sketch on XY plane
sketch16 = body.newObject("Sketcher::SketchObject", "Sketch015")
sketch16.AttachmentSupport = (doc.getObject("XY_Plane"), [""])
sketch16.MapMode = "FlatFace"
sketch16.AttachmentOffset = App.Placement(Vector(0, 0, -36.5), App.Rotation())
add_polygon(sketch16, [(18, 0), (-16, 0), (-16, -26), (-53.969911, -26), (-53.969911, 169), (-16, 169), (-16, 143), (18, 143)])  # lines 0-7
sketch16.addGeometry(Part.Circle(Vector(-3, 7.5, 0), Vector(0, 0, 1), 1.625), False)  # 8
sketch16.addGeometry(Part.Circle(Vector(-3, 57.5, 0), Vector(0, 0, 1), 1.625), False)  # 9
sketch16.addGeometry(Part.Circle(Vector(-3, 85.5, 0), Vector(0, 0, 1), 1.625), False)  # 10
sketch16.addGeometry(Part.Circle(Vector(-3, 135.5, 0), Vector(0, 0, 1), 1.625), False)  # 11
sketch16.addConstraint([
    Sketcher.Constraint("Horizontal", 0),
    Sketcher.Constraint("Vertical", 1),
    Sketcher.Constraint("Horizontal", 2),
    Sketcher.Constraint("Vertical", 3),
    Sketcher.Constraint("Horizontal", 4),
    Sketcher.Constraint("Vertical", 5),
    Sketcher.Constraint("Horizontal", 6),
    Sketcher.Constraint("Vertical", 7),
    Sketcher.Constraint("Equal", 8, 9),
    Sketcher.Constraint("Equal", 9, 10),
    Sketcher.Constraint("Equal", 10, 11),
    Sketcher.Constraint("PointOnObject", 0, 2, -1),
    Sketcher.Constraint("Vertical", 8, 3, 9, 3),
    Sketcher.Constraint("Vertical", 9, 3, 10, 3),
    Sketcher.Constraint("Vertical", 10, 3, 11, 3),
    Sketcher.Constraint("Vertical", 1, 2, 4, 2),
    Sketcher.Constraint("Equal", 1, 5),
    Sketcher.Constraint("Diameter", 8, Q("3.25 mm")),
    Sketcher.Constraint("DistanceX", 0, 2, 0, 1, Q("34 mm")),
    Sketcher.Constraint("DistanceY", 1, 2, 1, 1, Q("26 mm")),
    Sketcher.Constraint("DistanceY", 3, 1, 3, 2, Q("195 mm")),
    Sketcher.Constraint("DistanceX", 8, 3, -1, 1, Q("3 mm")),
    Sketcher.Constraint("DistanceX", 0, 2, -1, 1, Q("16 mm")),
    Sketcher.Constraint("DistanceY", 8, 3, 9, 3, Q("50 mm")),
    Sketcher.Constraint("DistanceY", 9, 3, 10, 3, Q("28 mm")),
    Sketcher.Constraint("DistanceY", 10, 3, 11, 3, Q("50 mm")),
    Sketcher.Constraint("DistanceY", -1, 1, 8, 3, Q("7.5 mm")),
    Sketcher.Constraint("DistanceX", 2, 2, 2, 1, Q("37.969911 mm")),
])
sketch16.setExpression("Constraints[25]", "Params.sketch16_diameter")
sketch16.setExpression("Constraints[26]", "Params.sketch16_width")
sketch16.setExpression("Constraints[27]", "Params.sketch16_height")
sketch16.setExpression("Constraints[28]", "Params.sketch16_height2")
pad7 = body.newObject("PartDesign::Pad", "Pad006")
pad7.Profile = sketch16
pad7.setExpression("Length", "Params.pad7_length")
pad7.Reversed = True

# Sketch on XZ plane
sketch17 = body.newObject("Sketcher::SketchObject", "Sketch016")
sketch17.AttachmentSupport = (doc.getObject("XZ_Plane"), [""])
sketch17.MapMode = "FlatFace"
sketch17.AttachmentOffset = App.Placement(Vector(0, 0, 26), App.Rotation())
add_polygon(sketch17, [(-51.636471, -38.5), (-53.969911, -36.5), (-54.241944, -38.819087)])  # lines 0-2
sketch17.addConstraint([
    Sketcher.Constraint("Angle", 0, Q("139.4 deg")),
    Sketcher.Constraint("DistanceY", 2, 2, 0, 2, Q("2 mm")),
    Sketcher.Constraint("DistanceY", 0, 2, -1, 1, Q("36.5 mm")),
    Sketcher.Constraint("Distance", 2, Q("2.624939 mm")),
    Sketcher.Constraint("DistanceX", 0, 2, -1, 1, Q("53.969911 mm")),
    Sketcher.Constraint("Distance", 1, Q("2.334988 mm")),
])
pocket10 = body.newObject("PartDesign::Pocket", "Pocket009")
pocket10.Profile = sketch17
pocket10.Type = "ThroughAll"
pocket10.Midplane = True

# Sketch on YZ plane
sketch18 = body.newObject("Sketcher::SketchObject", "Sketch017")
sketch18.AttachmentSupport = (doc.getObject("YZ_Plane"), [""])
sketch18.MapMode = "FlatFace"
sketch18.AttachmentOffset = App.Placement(Vector(0, 0, 18), App.Rotation())
add_polygon(sketch18, [(143, 2.5), (0, 2.5), (0, -38.5), (143, -38.5)])  # lines 0-3
sketch18.addGeometry(Part.Circle(Vector(7.5, -20, 0), Vector(0, 0, 1), 1.625), False)  # 4
sketch18.addGeometry(Part.Circle(Vector(57.5, -20, 0), Vector(0, 0, 1), 1.625), False)  # 5
sketch18.addGeometry(Part.Circle(Vector(85.5, -20, 0), Vector(0, 0, 1), 1.625), False)  # 6
sketch18.addGeometry(Part.Circle(Vector(135.5, -20, 0), Vector(0, 0, 1), 1.625), False)  # 7
sketch18.addConstraint([
    Sketcher.Constraint("Horizontal", 0),
    Sketcher.Constraint("Vertical", 1),
    Sketcher.Constraint("Horizontal", 2),
    Sketcher.Constraint("Vertical", 3),
    Sketcher.Constraint("Equal", 4, 5),
    Sketcher.Constraint("Equal", 5, 6),
    Sketcher.Constraint("Equal", 6, 7),
    Sketcher.Constraint("PointOnObject", 0, 2, -2),
    Sketcher.Constraint("Horizontal", 4, 3, 5, 3),
    Sketcher.Constraint("Horizontal", 5, 3, 6, 3),
    Sketcher.Constraint("Horizontal", 6, 3, 7, 3),
    Sketcher.Constraint("Diameter", 4, Q("3.25 mm")),
    Sketcher.Constraint("DistanceX", 0, 2, 0, 1, Q("143 mm")),
    Sketcher.Constraint("DistanceY", 1, 2, 1, 1, Q("41 mm")),
    Sketcher.Constraint("DistanceY", 4, 3, -1, 1, Q("20 mm")),
    Sketcher.Constraint("DistanceX", 4, 3, 5, 3, Q("50 mm")),
    Sketcher.Constraint("DistanceX", 5, 3, 6, 3, Q("28 mm")),
    Sketcher.Constraint("DistanceX", 6, 3, 7, 3, Q("50 mm")),
    Sketcher.Constraint("DistanceX", -1, 1, 4, 3, Q("7.5 mm")),
    Sketcher.Constraint("DistanceY", -1, 1, 0, 2, Q("2.5 mm")),
])
sketch18.setExpression("Constraints[15]", "Params.sketch18_diameter")
sketch18.setExpression("Constraints[16]", "Params.sketch18_width")
sketch18.setExpression("Constraints[17]", "Params.sketch18_height")
pad8 = body.newObject("PartDesign::Pad", "Pad007")
pad8.Profile = sketch18
pad8.setExpression("Length", "Params.pad8_length")

doc.recompute()
